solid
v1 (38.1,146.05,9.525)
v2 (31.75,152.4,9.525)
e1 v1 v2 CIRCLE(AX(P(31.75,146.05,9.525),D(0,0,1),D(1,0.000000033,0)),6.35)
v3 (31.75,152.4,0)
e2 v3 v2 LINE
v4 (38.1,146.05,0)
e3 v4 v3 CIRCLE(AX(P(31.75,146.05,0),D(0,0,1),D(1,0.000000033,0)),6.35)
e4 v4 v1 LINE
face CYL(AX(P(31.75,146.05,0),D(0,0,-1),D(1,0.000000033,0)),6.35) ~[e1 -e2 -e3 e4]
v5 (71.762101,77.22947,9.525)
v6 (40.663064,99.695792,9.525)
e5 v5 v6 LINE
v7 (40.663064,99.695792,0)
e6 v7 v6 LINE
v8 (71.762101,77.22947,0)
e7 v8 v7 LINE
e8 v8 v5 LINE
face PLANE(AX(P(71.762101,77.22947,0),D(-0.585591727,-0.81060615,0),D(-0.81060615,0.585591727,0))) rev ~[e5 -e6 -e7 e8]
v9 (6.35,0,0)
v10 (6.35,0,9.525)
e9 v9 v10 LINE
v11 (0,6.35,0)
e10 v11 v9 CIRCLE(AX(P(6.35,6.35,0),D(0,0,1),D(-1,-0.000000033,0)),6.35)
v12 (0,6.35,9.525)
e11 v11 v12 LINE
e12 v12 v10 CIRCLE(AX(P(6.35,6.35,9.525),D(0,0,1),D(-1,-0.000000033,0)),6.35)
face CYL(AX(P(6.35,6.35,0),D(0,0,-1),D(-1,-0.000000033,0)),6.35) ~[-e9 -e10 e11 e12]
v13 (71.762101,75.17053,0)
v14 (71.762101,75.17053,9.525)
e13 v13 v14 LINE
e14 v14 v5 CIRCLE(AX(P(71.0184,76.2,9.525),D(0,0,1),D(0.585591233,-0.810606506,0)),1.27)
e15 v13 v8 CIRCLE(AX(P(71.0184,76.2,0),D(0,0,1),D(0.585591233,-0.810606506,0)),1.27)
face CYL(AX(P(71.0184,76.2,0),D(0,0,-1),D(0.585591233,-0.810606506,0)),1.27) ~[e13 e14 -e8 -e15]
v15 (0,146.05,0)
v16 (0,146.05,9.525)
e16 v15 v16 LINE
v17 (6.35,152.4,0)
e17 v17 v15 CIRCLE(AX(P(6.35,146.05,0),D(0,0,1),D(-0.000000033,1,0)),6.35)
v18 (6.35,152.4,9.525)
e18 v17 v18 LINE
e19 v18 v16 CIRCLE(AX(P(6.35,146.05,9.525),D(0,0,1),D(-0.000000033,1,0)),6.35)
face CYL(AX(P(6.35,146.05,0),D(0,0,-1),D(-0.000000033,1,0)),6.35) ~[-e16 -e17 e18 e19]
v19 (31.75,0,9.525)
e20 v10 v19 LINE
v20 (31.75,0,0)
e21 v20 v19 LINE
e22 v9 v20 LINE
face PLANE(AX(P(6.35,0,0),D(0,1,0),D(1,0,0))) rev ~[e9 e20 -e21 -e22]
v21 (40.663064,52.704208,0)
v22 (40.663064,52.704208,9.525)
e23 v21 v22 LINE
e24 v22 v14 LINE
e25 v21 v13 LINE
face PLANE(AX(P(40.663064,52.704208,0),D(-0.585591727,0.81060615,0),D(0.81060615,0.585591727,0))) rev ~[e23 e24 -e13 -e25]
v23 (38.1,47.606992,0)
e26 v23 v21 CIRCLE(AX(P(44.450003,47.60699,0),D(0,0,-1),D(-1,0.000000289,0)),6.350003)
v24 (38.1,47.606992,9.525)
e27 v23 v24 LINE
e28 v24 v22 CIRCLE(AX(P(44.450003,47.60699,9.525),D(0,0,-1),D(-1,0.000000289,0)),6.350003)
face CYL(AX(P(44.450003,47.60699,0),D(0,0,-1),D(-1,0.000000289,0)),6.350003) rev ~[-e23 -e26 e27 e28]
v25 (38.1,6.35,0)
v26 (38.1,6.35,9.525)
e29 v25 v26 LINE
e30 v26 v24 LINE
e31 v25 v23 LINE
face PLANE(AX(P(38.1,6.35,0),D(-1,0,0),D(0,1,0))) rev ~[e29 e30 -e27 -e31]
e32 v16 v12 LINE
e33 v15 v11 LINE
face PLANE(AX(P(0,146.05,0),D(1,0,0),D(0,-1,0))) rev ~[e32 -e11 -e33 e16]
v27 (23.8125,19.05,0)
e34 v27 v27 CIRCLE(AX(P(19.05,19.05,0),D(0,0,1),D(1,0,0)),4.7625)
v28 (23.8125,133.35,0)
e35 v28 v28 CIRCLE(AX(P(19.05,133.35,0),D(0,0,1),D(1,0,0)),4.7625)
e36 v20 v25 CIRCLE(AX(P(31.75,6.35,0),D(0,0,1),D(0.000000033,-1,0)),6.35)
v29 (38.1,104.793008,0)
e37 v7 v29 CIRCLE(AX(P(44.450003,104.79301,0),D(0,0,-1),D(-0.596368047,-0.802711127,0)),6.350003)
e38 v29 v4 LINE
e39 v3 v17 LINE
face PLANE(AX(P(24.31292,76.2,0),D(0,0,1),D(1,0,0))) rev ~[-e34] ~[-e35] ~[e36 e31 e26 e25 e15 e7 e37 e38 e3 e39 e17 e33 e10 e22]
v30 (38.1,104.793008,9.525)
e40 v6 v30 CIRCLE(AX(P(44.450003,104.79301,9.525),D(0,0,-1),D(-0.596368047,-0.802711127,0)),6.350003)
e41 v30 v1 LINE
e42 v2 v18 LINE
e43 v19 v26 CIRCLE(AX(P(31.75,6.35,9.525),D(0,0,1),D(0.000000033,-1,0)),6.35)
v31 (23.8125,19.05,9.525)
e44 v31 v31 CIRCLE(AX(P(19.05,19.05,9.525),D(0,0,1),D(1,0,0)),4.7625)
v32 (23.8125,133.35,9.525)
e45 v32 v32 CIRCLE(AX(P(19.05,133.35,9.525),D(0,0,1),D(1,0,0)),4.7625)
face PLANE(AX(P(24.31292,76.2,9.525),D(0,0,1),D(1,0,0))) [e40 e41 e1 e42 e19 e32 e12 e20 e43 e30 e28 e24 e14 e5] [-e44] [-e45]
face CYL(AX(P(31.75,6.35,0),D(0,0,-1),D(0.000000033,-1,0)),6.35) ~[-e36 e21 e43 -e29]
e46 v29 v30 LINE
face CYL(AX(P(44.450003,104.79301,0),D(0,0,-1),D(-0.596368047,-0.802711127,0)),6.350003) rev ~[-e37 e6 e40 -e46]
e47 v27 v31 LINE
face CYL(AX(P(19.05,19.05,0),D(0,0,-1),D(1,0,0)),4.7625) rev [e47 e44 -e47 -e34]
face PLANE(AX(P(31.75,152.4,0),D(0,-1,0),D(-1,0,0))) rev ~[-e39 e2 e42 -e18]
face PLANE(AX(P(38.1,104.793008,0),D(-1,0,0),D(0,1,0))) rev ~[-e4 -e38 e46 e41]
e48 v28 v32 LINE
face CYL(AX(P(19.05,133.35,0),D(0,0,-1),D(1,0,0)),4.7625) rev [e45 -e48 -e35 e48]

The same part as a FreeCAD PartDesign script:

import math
import FreeCAD as App
import Part
import Sketcher
Q = App.Units.Quantity

doc = App.newDocument("Part")
body = doc.addObject("PartDesign::Body", "Body")

# Sketch on XY plane
sketch1 = body.newObject("Sketcher::SketchObject", "Sketch")
sketch1.AttachmentSupport = (doc.getObject("XY_Plane"), [""])
sketch1.MapMode = "FlatFace"
sketch1.addGeometry(Part.ArcOfCircle(Part.Circle(App.Vector(6.35, 6.35, 0), App.Vector(0, 0, 1), 6.35), math.radians(-179.999998), math.radians(-90.000002)), False)
sketch1.addGeometry(Part.LineSegment(App.Vector(6.35, 0, 0), App.Vector(31.75, 0, 0)), False)
sketch1.addGeometry(Part.ArcOfCircle(Part.Circle(App.Vector(31.75, 6.35, 0), App.Vector(0, 0, 1), 6.35), math.radians(-89.999998), math.radians(-0.000002)), False)
sketch1.addGeometry(Part.LineSegment(App.Vector(38.1, 6.35, 0), App.Vector(38.1, 47.606992, 0)), False)
sketch1.addGeometry(Part.ArcOfCircle(Part.Circle(App.Vector(44.450003, 47.60699, 0), App.Vector(0, 0, 1), 6.350003), math.radians(126.610219), math.radians(179.999983)), False)
sketch1.addGeometry(Part.LineSegment(App.Vector(40.663064, 52.704208, 0), App.Vector(71.762101, 75.17053, 0)), False)
sketch1.addGeometry(Part.ArcOfCircle(Part.Circle(App.Vector(71.0184, 76.2, 0), App.Vector(0, 0, 1), 1.27), math.radians(-54.155231), math.radians(54.155231)), False)
sketch1.addGeometry(Part.LineSegment(App.Vector(71.762101, 77.22947, 0), App.Vector(40.663064, 99.695792, 0)), False)
sketch1.addGeometry(Part.ArcOfCircle(Part.Circle(App.Vector(44.450003, 104.79301, 0), App.Vector(0, 0, 1), 6.350003), math.radians(-179.999983), math.radians(-126.610219)), False)
sketch1.addGeometry(Part.LineSegment(App.Vector(38.1, 104.793008, 0), App.Vector(38.1, 146.05, 0)), False)
sketch1.addGeometry(Part.ArcOfCircle(Part.Circle(App.Vector(31.75, 146.05, 0), App.Vector(0, 0, 1), 6.35), math.radians(0.000002), math.radians(89.999998)), False)
sketch1.addGeometry(Part.LineSegment(App.Vector(31.75, 152.4, 0), App.Vector(6.35, 152.4, 0)), False)
sketch1.addGeometry(Part.ArcOfCircle(Part.Circle(App.Vector(6.35, 146.05, 0), App.Vector(0, 0, 1), 6.35), math.radians(90.000002), math.radians(179.999998)), False)
sketch1.addGeometry(Part.LineSegment(App.Vector(0, 146.05, 0), App.Vector(0, 6.35, 0)), False)
sketch1.addGeometry(Part.Circle(App.Vector(19.05, 19.05, 0), App.Vector(0, 0, 1), 4.7625), False)
sketch1.addGeometry(Part.Circle(App.Vector(19.05, 133.35, 0), App.Vector(0, 0, 1), 4.7625), False)
sketch1.addConstraint(Sketcher.Constraint("Tangent", 0, 2, 1, 1))
sketch1.addConstraint(Sketcher.Constraint("Tangent", 1, 2, 2, 1))
sketch1.addConstraint(Sketcher.Constraint("Tangent", 2, 2, 3, 1))
sketch1.addConstraint(Sketcher.Constraint("Tangent", 3, 2, 4, 2))
sketch1.addConstraint(Sketcher.Constraint("Coincident", 4, 1, 5, 1))
sketch1.addConstraint(Sketcher.Constraint("Tangent", 5, 2, 6, 1))
sketch1.addConstraint(Sketcher.Constraint("Tangent", 6, 2, 7, 1))
sketch1.addConstraint(Sketcher.Constraint("Coincident", 7, 2, 8, 2))
sketch1.addConstraint(Sketcher.Constraint("Tangent", 8, 1, 9, 1))
sketch1.addConstraint(Sketcher.Constraint("Tangent", 9, 2, 10, 1))
sketch1.addConstraint(Sketcher.Constraint("Tangent", 10, 2, 11, 1))
sketch1.addConstraint(Sketcher.Constraint("Tangent", 11, 2, 12, 1))
sketch1.addConstraint(Sketcher.Constraint("Tangent", 12, 2, 13, 1))
sketch1.addConstraint(Sketcher.Constraint("Tangent", 13, 2, 0, 1))
sketch1.addConstraint(Sketcher.Constraint("Horizontal", 1))
sketch1.addConstraint(Sketcher.Constraint("Vertical", 3))
sketch1.addConstraint(Sketcher.Constraint("Vertical", 9))
sketch1.addConstraint(Sketcher.Constraint("Horizontal", 11))
sketch1.addConstraint(Sketcher.Constraint("Vertical", 13))
sketch1.addConstraint(Sketcher.Constraint("Equal", 0, 2))
sketch1.addConstraint(Sketcher.Constraint("Equal", 4, 8))
sketch1.addConstraint(Sketcher.Constraint("Equal", 2, 10))
sketch1.addConstraint(Sketcher.Constraint("Equal", 10, 12))
sketch1.addConstraint(Sketcher.Constraint("Equal", 14, 15))
sketch1.addConstraint(Sketcher.Constraint("PointOnObject", 0, 2, -1))
sketch1.addConstraint(Sketcher.Constraint("PointOnObject", 12, 2, -2))
sketch1.addConstraint(Sketcher.Constraint("Vertical", 4, 3, 8, 3))
sketch1.addConstraint(Sketcher.Constraint("Vertical", 14, 3, 15, 3))
sketch1.addConstraint(Sketcher.Constraint("Vertical", 5, 2, 6, 2))
sketch1.addConstraint(Sketcher.Constraint("Vertical", 4, 1, 7, 2))
sketch1.addConstraint(Sketcher.Constraint("Equal", 3, 9))
sketch1.addConstraint(Sketcher.Constraint("DistanceX", 1, 1, 1, 2, Q("1 in")))
sketch1.addConstraint(Sketcher.Constraint("Radius", 0, Q("0.25 in")))
sketch1.addConstraint(Sketcher.Constraint("Radius", 4, Q("0.2500001 in")))
sketch1.addConstraint(Sketcher.Constraint("Radius", 6, Q("0.05 in")))
sketch1.addConstraint(Sketcher.Constraint("Diameter", 14, Q("0.375 in")))
sketch1.addConstraint(Sketcher.Constraint("DistanceY", 13, 2, 13, 1, Q("5.5 in")))
sketch1.addConstraint(Sketcher.Constraint("DistanceX", 14, 3, 4, 3, Q("1.0000001 in")))
sketch1.addConstraint(Sketcher.Constraint("DistanceY", 0, 3, 14, 3, Q("0.5 in")))
sketch1.addConstraint(Sketcher.Constraint("DistanceY", 15, 3, 10, 3, Q("0.5 in")))
sketch1.addConstraint(Sketcher.Constraint("DistanceX", -1, 1, 6, 3, Q("2.796 in")))
sketch1.addConstraint(Sketcher.Constraint("DistanceY", 3, 1, 3, 2, 41.256992))
sketch1.addConstraint(Sketcher.Constraint("DistanceY", -1, 1, 4, 1, 52.704208))
pad1 = body.newObject("PartDesign::Pad", "Pad")
pad1.Profile = sketch1
pad1.Length = Q("0.375 in")

doc.recompute()
